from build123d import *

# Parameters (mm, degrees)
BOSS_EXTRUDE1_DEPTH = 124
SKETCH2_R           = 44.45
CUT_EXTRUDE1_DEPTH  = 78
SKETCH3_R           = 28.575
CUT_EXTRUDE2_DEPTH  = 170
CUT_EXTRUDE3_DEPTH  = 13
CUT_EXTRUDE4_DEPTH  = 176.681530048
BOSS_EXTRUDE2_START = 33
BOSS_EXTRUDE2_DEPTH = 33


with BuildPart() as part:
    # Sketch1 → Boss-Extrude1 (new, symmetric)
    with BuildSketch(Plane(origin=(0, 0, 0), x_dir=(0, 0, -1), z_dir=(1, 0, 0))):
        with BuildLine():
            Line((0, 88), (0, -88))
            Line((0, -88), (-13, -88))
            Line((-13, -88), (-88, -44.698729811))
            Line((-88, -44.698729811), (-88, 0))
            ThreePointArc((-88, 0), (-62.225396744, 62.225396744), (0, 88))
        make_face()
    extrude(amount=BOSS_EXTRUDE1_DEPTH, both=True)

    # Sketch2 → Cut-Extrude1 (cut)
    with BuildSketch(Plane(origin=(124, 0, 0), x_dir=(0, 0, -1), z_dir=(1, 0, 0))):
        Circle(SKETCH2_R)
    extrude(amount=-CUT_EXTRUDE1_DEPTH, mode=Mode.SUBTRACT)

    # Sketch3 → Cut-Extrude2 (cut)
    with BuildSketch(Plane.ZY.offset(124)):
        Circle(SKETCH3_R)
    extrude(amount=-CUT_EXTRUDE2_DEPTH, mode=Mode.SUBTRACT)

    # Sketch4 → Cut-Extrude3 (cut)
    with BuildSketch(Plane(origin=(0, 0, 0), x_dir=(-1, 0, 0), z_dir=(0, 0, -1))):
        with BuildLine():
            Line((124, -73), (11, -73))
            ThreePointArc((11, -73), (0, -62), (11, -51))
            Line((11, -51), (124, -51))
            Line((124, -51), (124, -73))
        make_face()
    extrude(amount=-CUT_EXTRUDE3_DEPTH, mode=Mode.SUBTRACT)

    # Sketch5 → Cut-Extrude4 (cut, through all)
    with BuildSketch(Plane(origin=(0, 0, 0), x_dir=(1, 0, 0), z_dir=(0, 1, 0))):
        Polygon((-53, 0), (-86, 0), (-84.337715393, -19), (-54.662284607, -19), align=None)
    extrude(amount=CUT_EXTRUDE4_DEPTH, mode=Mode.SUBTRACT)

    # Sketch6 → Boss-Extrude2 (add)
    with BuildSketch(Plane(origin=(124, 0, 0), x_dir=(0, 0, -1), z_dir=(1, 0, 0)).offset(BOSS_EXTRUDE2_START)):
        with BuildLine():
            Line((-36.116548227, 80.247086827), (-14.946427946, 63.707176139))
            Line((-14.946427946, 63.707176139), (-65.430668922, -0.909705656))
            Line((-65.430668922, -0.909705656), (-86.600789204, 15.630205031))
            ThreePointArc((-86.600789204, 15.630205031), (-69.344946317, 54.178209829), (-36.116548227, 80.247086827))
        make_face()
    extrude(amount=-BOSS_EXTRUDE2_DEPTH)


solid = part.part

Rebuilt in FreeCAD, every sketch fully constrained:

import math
import FreeCAD as App
import Part
import Sketcher

V = App.Vector
Q = App.Units.Quantity

doc = App.newDocument("Part")
params = doc.addObject("Spreadsheet::Sheet", "Params")
for row, (alias, value) in enumerate([
    ("sketch1_radius", "88 mm"),
    ("sketch1_height", "13 mm"),
    ("pad1_length", "248 mm"),
    ("sketch2_diameter", "88.9 mm"),
    ("pocket1_length", "78 mm"),
    ("sketch3_diameter", "57.15 mm"),
    ("pocket2_length", "170 mm"),
    ("sketch4_radius", "11 mm"),
    ("sketch4_width", "113 mm"),
    ("pocket3_length", "13 mm"),
    ("sketch5_width", "33 mm"),
    ("sketch6_radius", "88 mm"),
    ("sketch6_length", "82 mm"),
    ("pad2_length", "33 mm"),
], start=1):
    params.set(f"A{row}", alias)
    params.set(f"B{row}", "=" + value)
    params.setAlias(f"B{row}", alias)

body = doc.addObject("PartDesign::Body", "Body")

# Sketch on YZ plane
sketch1 = body.newObject("Sketcher::SketchObject", "Sketch")
sketch1.AttachmentSupport = (doc.getObject("YZ_Plane"), [""])
sketch1.MapMode = "FlatFace"
sketch1.addGeometry(Part.LineSegment(V(-88, 0, 0), V(88, 0, 0)), False)
sketch1.addGeometry(Part.ArcOfCircle(Part.Circle(V(0, 0, 0), V(0, 0, 1), 88), math.radians(0), math.radians(90)), False)
sketch1.addGeometry(Part.LineSegment(V(0, 88, 0), V(-45, 88, 0)), False)
sketch1.addGeometry(Part.LineSegment(V(-45, 88, 0), V(-88, 13, 0)), False)
sketch1.addGeometry(Part.LineSegment(V(-88, 13, 0), V(-88, 0, 0)), False)
sketch1.addConstraint(Sketcher.Constraint("Coincident", 0, 2, 1, 1))
sketch1.addConstraint(Sketcher.Constraint("Tangent", 1, 2, 2, 1))
sketch1.addConstraint(Sketcher.Constraint("Coincident", 2, 2, 3, 1))
sketch1.addConstraint(Sketcher.Constraint("Coincident", 3, 2, 4, 1))
sketch1.addConstraint(Sketcher.Constraint("Coincident", 4, 2, 0, 1))
sketch1.addConstraint(Sketcher.Constraint("Horizontal", 0))
sketch1.addConstraint(Sketcher.Constraint("Horizontal", 2))
sketch1.addConstraint(Sketcher.Constraint("Vertical", 4))
sketch1.addConstraint(Sketcher.Constraint("Coincident", 1, 3, -1, 1))
sketch1.addConstraint(Sketcher.Constraint("Symmetric", 0, 2, 4, 2, -1, 1))
sketch1.addConstraint(Sketcher.Constraint("Radius", 1, Q("88 mm")))
sketch1.addConstraint(Sketcher.Constraint("DistanceY", 4, 2, 4, 1, Q("13 mm")))
sketch1.addConstraint(Sketcher.Constraint("Angle", 3, Q("-120 deg")))
sketch1.setExpression("Constraints[10]", "Params.sketch1_radius")
sketch1.setExpression("Constraints[11]", "Params.sketch1_height")
pad1 = body.newObject("PartDesign::Pad", "Pad")
pad1.Profile = sketch1
pad1.setExpression("Length", "Params.pad1_length")
pad1.Midplane = True

# Sketch on YZ plane
sketch2 = body.newObject("Sketcher::SketchObject", "Sketch001")
sketch2.AttachmentSupport = (doc.getObject("YZ_Plane"), [""])
sketch2.MapMode = "FlatFace"
sketch2.AttachmentOffset = App.Placement(V(0, 0, 124), App.Rotation())
sketch2.addGeometry(Part.Circle(V(0, 0, 0), V(0, 0, 1), 44), False)
sketch2.addConstraint(Sketcher.Constraint("Coincident", 0, 3, -1, 1))
sketch2.addConstraint(Sketcher.Constraint("Diameter", 0, Q("88.9 mm")))
sketch2.setExpression("Constraints[1]", "Params.sketch2_diameter")
pocket1 = body.newObject("PartDesign::Pocket", "Pocket")
pocket1.Profile = sketch2
pocket1.setExpression("Length", "Params.pocket1_length")

# Sketch on YZ plane
sketch3 = body.newObject("Sketcher::SketchObject", "Sketch002")
sketch3.AttachmentSupport = (doc.getObject("YZ_Plane"), [""])
sketch3.MapMode = "FlatFace"
sketch3.AttachmentOffset = App.Placement(V(0, 0, -124), App.Rotation())
sketch3.addGeometry(Part.Circle(V(0, 0, 0), V(0, 0, 1), 29), False)
sketch3.addConstraint(Sketcher.Constraint("Coincident", 0, 3, -1, 1))
sketch3.addConstraint(Sketcher.Constraint("Diameter", 0, Q("57.15 mm")))
sketch3.setExpression("Constraints[1]", "Params.sketch3_diameter")
pocket2 = body.newObject("PartDesign::Pocket", "Pocket001")
pocket2.Profile = sketch3
pocket2.setExpression("Length", "Params.pocket2_length")
pocket2.Reversed = True

# Sketch on XY plane
sketch4 = body.newObject("Sketcher::SketchObject", "Sketch003")
sketch4.AttachmentSupport = (doc.getObject("XY_Plane"), [""])
sketch4.MapMode = "FlatFace"
sketch4.addGeometry(Part.LineSegment(V(-11, -73, 0), V(-124, -73, 0)), False)
sketch4.addGeometry(Part.LineSegment(V(-124, -73, 0), V(-124, -51, 0)), False)
sketch4.addGeometry(Part.LineSegment(V(-124, -51, 0), V(-11, -51, 0)), False)
sketch4.addGeometry(Part.ArcOfCircle(Part.Circle(V(-11, -62, 0), V(0, 0, 1), 11), math.radians(-90), math.radians(90)), False)
sketch4.addConstraint(Sketcher.Constraint("Coincident", 0, 2, 1, 1))
sketch4.addConstraint(Sketcher.Constraint("Coincident", 1, 2, 2, 1))
sketch4.addConstraint(Sketcher.Constraint("Tangent", 2, 2, 3, 2))
sketch4.addConstraint(Sketcher.Constraint("Tangent", 3, 1, 0, 1))
sketch4.addConstraint(Sketcher.Constraint("Horizontal", 0))
sketch4.addConstraint(Sketcher.Constraint("Vertical", 1))
sketch4.addConstraint(Sketcher.Constraint("Horizontal", 2))
sketch4.addConstraint(Sketcher.Constraint("Radius", 3, Q("11 mm")))
sketch4.addConstraint(Sketcher.Constraint("DistanceX", 0, 2, 0, 1, Q("113 mm")))
sketch4.addConstraint(Sketcher.Constraint("DistanceX", 3, 3, -1, 1, Q("11 mm")))
sketch4.addConstraint(Sketcher.Constraint("DistanceY", 3, 3, -1, 1, Q("62 mm")))
sketch4.setExpression("Constraints[7]", "Params.sketch4_radius")
sketch4.setExpression("Constraints[8]", "Params.sketch4_width")
pocket3 = body.newObject("PartDesign::Pocket", "Pocket002")
pocket3.Profile = sketch4
pocket3.setExpression("Length", "Params.pocket3_length")
pocket3.Reversed = True

# Sketch on XZ plane
sketch5 = body.newObject("Sketcher::SketchObject", "Sketch004")
sketch5.AttachmentSupport = (doc.getObject("XZ_Plane"), [""])
sketch5.MapMode = "FlatFace"
sketch5.addGeometry(Part.LineSegment(V(-53, 0, 0), V(-86, 0, 0)), False)
sketch5.addGeometry(Part.LineSegment(V(-86, 0, 0), V(-84, 19, 0)), False)
sketch5.addGeometry(Part.LineSegment(V(-84, 19, 0), V(-55, 19, 0)), False)
sketch5.addGeometry(Part.LineSegment(V(-55, 19, 0), V(-53, 0, 0)), False)
sketch5.addConstraint(Sketcher.Constraint("Coincident", 0, 2, 1, 1))
sketch5.addConstraint(Sketcher.Constraint("Coincident", 1, 2, 2, 1))
sketch5.addConstraint(Sketcher.Constraint("Coincident", 2, 2, 3, 1))
sketch5.addConstraint(Sketcher.Constraint("Coincident", 3, 2, 0, 1))
sketch5.addConstraint(Sketcher.Constraint("Horizontal", 0))
sketch5.addConstraint(Sketcher.Constraint("Horizontal", 2))
sketch5.addConstraint(Sketcher.Constraint("PointOnObject", 0, 2, -1))
sketch5.addConstraint(Sketcher.Constraint("Equal", 1, 3))
sketch5.addConstraint(Sketcher.Constraint("DistanceX", 0, 2, 0, 1, Q("33 mm")))
sketch5.addConstraint(Sketcher.Constraint("Angle", 1, Q("85 deg")))
sketch5.addConstraint(Sketcher.Constraint("DistanceX", 0, 2, -1, 1, Q("86 mm")))
sketch5.addConstraint(Sketcher.Constraint("DistanceY", -1, 1, 1, 2, Q("19 mm")))
sketch5.setExpression("Constraints[8]", "Params.sketch5_width")
pocket4 = body.newObject("PartDesign::Pocket", "Pocket003")
pocket4.Profile = sketch5
pocket4.Type = "ThroughAll"

# Sketch on YZ plane
sketch6 = body.newObject("Sketcher::SketchObject", "Sketch005")
sketch6.AttachmentSupport = (doc.getObject("YZ_Plane"), [""])
sketch6.MapMode = "FlatFace"
sketch6.AttachmentOffset = App.Placement(V(0, 0, 157), App.Rotation())
sketch6.addGeometry(Part.LineSegment(V(64, 15, 0), V(80, 36, 0)), False)
sketch6.addGeometry(Part.ArcOfCircle(Part.Circle(V(0, 0, 0), V(0, 0, 1), 88), math.radians(24), math.radians(80)), False)
sketch6.addGeometry(Part.LineSegment(V(16, 87, 0), V(-1, 65, 0)), False)
sketch6.addGeometry(Part.LineSegment(V(-1, 65, 0), V(64, 15, 0)), False)
sketch6.addConstraint(Sketcher.Constraint("Coincident", 0, 2, 1, 1))
sketch6.addConstraint(Sketcher.Constraint("Coincident", 1, 2, 2, 1))
sketch6.addConstraint(Sketcher.Constraint("Coincident", 2, 2, 3, 1))
sketch6.addConstraint(Sketcher.Constraint("Coincident", 3, 2, 0, 1))
sketch6.addConstraint(Sketcher.Constraint("Coincident", 1, 3, -1, 1))
sketch6.addConstraint(Sketcher.Constraint("Parallel", 0, 2))
sketch6.addConstraint(Sketcher.Constraint("Perpendicular", 2, 3))
sketch6.addConstraint(Sketcher.Constraint("Equal", 0, 2))
sketch6.addConstraint(Sketcher.Constraint("Radius", 1, Q("88 mm")))
sketch6.addConstraint(Sketcher.Constraint("Angle", 0, Q("52 deg")))
sketch6.addConstraint(Sketcher.Constraint("Distance", 3, Q("82 mm")))
sketch6.addConstraint(Sketcher.Constraint("Distance", 0, Q("26.865268 mm")))
sketch6.setExpression("Constraints[8]", "Params.sketch6_radius")
sketch6.setExpression("Constraints[10]", "Params.sketch6_length")
pad2 = body.newObject("PartDesign::Pad", "Pad001")
pad2.Profile = sketch6
pad2.setExpression("Length", "Params.pad2_length")
pad2.Reversed = True

doc.recompute()
